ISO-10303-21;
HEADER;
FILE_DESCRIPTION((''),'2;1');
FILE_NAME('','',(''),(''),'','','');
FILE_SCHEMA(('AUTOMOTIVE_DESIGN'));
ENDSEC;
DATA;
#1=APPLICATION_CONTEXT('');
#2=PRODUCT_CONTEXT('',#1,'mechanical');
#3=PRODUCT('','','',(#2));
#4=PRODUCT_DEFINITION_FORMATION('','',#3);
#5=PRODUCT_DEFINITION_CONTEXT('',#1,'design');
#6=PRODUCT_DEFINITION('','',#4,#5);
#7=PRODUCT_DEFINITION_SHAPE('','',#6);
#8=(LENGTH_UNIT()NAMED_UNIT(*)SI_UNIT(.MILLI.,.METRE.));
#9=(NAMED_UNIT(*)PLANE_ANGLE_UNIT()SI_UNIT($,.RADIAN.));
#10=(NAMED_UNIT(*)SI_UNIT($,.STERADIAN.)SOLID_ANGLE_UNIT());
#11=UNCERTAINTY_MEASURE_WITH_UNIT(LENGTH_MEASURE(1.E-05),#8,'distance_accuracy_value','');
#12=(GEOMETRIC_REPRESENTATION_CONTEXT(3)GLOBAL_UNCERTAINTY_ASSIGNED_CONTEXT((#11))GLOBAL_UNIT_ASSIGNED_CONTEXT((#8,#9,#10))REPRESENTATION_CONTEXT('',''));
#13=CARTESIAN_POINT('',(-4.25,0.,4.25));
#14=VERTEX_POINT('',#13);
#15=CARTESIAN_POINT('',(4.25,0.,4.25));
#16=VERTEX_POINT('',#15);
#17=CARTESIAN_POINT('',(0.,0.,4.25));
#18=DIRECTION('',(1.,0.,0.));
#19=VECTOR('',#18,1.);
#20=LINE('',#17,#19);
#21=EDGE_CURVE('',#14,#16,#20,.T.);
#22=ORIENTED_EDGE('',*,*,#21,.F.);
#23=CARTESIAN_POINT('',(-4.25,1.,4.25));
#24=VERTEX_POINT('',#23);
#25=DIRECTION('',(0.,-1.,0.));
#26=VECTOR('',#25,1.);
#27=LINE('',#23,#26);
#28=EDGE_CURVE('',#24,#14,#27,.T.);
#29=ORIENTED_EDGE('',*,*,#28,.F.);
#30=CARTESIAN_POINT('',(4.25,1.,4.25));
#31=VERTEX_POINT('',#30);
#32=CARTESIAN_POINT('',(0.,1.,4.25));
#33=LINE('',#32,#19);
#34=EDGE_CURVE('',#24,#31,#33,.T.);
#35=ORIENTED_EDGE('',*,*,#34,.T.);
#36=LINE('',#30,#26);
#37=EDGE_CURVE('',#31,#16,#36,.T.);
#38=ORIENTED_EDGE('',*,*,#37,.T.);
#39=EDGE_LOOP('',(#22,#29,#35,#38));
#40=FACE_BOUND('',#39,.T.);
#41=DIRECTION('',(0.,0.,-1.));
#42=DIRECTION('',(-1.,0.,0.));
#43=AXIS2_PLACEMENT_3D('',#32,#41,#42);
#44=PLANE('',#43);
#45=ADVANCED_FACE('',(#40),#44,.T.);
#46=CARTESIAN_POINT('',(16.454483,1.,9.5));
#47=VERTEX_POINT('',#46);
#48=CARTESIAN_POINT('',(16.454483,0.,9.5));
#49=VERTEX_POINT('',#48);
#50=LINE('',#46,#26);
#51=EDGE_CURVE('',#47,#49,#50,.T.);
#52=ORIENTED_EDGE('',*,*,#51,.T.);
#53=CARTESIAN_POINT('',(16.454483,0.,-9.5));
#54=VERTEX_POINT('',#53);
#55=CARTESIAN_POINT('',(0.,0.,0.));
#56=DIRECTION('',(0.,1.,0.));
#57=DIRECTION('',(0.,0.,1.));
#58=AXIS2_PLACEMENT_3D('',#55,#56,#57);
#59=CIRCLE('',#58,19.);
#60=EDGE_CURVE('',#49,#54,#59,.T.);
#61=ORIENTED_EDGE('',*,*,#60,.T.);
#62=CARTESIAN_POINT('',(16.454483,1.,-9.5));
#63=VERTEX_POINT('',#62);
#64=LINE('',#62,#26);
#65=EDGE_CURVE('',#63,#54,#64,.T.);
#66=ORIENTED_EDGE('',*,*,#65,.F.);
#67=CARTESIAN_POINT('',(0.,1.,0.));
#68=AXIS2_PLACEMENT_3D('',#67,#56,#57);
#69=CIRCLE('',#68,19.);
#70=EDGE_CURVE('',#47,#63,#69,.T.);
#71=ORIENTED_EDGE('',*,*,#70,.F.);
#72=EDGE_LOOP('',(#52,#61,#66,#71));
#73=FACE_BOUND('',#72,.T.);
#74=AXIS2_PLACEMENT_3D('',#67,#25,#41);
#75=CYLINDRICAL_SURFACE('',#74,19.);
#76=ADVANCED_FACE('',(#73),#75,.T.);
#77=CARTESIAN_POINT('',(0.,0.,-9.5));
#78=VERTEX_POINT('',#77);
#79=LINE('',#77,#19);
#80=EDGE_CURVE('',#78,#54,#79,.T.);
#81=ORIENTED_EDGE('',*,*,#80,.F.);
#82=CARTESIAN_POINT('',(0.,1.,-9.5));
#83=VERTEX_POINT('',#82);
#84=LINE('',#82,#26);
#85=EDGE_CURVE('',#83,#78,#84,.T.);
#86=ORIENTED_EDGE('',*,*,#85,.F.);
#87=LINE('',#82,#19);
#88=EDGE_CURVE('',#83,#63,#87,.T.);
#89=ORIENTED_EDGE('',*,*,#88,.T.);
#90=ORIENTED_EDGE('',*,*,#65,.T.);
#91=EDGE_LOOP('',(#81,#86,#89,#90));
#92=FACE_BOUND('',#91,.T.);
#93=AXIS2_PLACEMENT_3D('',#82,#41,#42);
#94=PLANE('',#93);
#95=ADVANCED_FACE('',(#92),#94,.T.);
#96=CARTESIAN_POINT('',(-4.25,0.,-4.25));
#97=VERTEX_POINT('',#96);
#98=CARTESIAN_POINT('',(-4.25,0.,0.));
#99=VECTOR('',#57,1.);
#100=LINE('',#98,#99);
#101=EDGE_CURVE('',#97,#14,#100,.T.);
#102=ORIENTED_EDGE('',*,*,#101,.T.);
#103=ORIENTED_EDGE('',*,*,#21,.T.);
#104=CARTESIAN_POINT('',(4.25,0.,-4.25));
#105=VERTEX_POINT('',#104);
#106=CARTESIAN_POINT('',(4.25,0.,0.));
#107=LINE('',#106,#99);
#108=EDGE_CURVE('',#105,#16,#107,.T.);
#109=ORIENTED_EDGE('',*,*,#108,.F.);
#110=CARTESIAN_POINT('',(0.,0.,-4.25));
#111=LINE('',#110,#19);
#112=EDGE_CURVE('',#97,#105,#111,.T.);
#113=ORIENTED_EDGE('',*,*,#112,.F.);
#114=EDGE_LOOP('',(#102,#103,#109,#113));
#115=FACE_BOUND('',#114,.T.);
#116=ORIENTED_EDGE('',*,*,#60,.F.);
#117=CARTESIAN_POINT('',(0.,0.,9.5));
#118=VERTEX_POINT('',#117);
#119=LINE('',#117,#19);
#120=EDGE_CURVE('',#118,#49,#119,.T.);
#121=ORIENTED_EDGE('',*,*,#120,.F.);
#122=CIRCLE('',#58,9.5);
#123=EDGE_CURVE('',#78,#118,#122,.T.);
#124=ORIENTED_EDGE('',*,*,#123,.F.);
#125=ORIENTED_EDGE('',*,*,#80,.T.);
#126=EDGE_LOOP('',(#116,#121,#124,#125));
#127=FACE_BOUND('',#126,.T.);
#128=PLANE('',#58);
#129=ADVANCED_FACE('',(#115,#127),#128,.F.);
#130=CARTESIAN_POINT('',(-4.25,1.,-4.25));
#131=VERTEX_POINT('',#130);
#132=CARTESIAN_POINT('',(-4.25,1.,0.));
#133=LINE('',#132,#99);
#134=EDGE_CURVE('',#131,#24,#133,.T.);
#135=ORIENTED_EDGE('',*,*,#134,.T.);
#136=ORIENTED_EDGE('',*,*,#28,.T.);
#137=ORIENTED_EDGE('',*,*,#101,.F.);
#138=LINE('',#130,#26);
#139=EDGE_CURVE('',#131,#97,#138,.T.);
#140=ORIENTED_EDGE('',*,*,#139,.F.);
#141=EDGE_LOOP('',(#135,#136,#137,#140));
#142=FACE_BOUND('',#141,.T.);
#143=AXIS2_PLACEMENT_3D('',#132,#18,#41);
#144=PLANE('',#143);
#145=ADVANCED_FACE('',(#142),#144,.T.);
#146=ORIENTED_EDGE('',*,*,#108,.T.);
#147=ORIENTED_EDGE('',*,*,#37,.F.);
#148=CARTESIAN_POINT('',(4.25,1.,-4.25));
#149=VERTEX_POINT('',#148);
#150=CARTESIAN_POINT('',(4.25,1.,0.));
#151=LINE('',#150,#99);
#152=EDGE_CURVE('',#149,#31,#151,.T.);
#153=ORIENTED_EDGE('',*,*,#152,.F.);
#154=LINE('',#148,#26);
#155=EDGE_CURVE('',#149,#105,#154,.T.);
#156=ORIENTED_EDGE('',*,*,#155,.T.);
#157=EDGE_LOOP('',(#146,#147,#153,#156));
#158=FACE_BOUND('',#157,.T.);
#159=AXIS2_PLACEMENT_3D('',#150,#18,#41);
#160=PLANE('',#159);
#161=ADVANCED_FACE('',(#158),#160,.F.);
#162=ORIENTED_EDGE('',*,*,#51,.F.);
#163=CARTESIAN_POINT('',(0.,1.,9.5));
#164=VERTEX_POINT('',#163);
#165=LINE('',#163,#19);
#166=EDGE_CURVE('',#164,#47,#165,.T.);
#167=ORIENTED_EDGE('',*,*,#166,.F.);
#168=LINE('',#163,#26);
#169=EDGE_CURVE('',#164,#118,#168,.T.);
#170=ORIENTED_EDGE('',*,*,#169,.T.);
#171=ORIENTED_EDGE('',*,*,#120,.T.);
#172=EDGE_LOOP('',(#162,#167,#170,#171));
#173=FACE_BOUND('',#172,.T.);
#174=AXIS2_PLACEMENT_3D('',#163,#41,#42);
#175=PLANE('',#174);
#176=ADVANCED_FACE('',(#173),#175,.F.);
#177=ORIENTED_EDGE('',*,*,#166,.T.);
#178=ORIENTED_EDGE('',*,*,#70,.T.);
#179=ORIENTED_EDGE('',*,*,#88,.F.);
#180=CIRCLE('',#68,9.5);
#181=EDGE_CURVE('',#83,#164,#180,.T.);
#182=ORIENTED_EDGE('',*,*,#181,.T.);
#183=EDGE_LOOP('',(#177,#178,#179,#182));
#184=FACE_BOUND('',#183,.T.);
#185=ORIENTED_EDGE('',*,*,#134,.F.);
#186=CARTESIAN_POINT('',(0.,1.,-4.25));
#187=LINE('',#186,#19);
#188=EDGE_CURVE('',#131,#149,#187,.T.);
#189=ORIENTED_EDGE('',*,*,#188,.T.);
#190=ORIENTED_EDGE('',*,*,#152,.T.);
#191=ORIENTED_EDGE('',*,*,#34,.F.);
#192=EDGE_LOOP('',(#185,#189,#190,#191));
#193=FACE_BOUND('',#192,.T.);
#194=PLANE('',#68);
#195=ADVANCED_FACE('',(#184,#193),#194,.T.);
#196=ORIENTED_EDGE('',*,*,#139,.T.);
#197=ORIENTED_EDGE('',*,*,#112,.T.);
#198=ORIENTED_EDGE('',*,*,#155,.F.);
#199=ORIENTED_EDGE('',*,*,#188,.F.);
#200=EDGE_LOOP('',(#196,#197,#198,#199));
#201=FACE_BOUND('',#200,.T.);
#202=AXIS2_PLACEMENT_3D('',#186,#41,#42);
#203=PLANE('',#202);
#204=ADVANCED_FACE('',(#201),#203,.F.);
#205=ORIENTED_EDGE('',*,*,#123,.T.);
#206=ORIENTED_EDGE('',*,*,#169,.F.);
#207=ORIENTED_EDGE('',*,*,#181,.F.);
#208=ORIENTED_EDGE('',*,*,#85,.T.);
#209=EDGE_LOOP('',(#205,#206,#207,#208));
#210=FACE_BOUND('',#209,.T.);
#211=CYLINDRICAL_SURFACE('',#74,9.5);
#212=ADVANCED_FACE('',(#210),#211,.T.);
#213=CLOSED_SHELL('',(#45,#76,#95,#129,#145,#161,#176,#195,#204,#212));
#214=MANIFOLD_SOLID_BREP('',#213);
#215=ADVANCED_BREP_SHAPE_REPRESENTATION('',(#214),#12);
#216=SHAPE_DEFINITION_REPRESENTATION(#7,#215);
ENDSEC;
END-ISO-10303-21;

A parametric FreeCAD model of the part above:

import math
import FreeCAD as App
import Part
import Sketcher

V = App.Vector

doc = App.newDocument("Part")
body = doc.addObject("PartDesign::Body", "Body")

sketch1 = doc.addObject("Sketcher::SketchObject", "Sketch")
body.addObject(sketch1)
sketch1.AttachmentSupport = (doc.XZ_Plane, [""])
sketch1.MapMode = "FlatFace"
sketch1.addGeometry(Part.LineSegment(V(0, 9.5, 0), V(16.454483, 9.5, 0)), False)
sketch1.addGeometry(Part.ArcOfCircle(Part.Circle(V(0, 0, 0), V(0, 0, 1), 19), math.radians(-30), math.radians(30)), False)
sketch1.addGeometry(Part.LineSegment(V(16.454483, -9.5, 0), V(0, -9.5, 0)), False)
sketch1.addGeometry(Part.ArcOfCircle(Part.Circle(V(0, 0, 0), V(0, 0, 1), 9.5), math.radians(90), math.radians(270)), False)
sketch1.addGeometry(Part.LineSegment(V(4.25, 4.25, 0), V(-4.25, 4.25, 0)), False)
sketch1.addGeometry(Part.LineSegment(V(-4.25, 4.25, 0), V(-4.25, -4.25, 0)), False)
sketch1.addGeometry(Part.LineSegment(V(-4.25, -4.25, 0), V(4.25, -4.25, 0)), False)
sketch1.addGeometry(Part.LineSegment(V(4.25, -4.25, 0), V(4.25, 4.25, 0)), False)
sketch1.addConstraint(Sketcher.Constraint("Coincident", 0, 2, 1, 2))
sketch1.addConstraint(Sketcher.Constraint("Coincident", 1, 1, 2, 1))
sketch1.addConstraint(Sketcher.Constraint("Tangent", 2, 2, 3, 2))
sketch1.addConstraint(Sketcher.Constraint("Tangent", 3, 1, 0, 1))
sketch1.addConstraint(Sketcher.Constraint("Coincident", 4, 2, 5, 1))
sketch1.addConstraint(Sketcher.Constraint("Coincident", 5, 2, 6, 1))
sketch1.addConstraint(Sketcher.Constraint("Coincident", 6, 2, 7, 1))
sketch1.addConstraint(Sketcher.Constraint("Coincident", 7, 2, 4, 1))
sketch1.addConstraint(Sketcher.Constraint("Horizontal", 0))
sketch1.addConstraint(Sketcher.Constraint("Horizontal", 2))
sketch1.addConstraint(Sketcher.Constraint("Horizontal", 4))
sketch1.addConstraint(Sketcher.Constraint("Vertical", 5))
sketch1.addConstraint(Sketcher.Constraint("Horizontal", 6))
sketch1.addConstraint(Sketcher.Constraint("Vertical", 7))
sketch1.addConstraint(Sketcher.Constraint("Coincident", 1, 3, -1, 1))
sketch1.addConstraint(Sketcher.Constraint("Coincident", 3, 3, -1, 1))
sketch1.addConstraint(Sketcher.Constraint("Symmetric", 4, 2, 6, 2, -1, 1))
sketch1.addConstraint(Sketcher.Constraint("Equal", 6, 5))
sketch1.addConstraint(Sketcher.Constraint("Radius", 1, 19.0))
sketch1.addConstraint(Sketcher.Constraint("Radius", 3, 9.5))
sketch1.addConstraint(Sketcher.Constraint("DistanceX", 4, 2, 4, 1, 8.5))
pad1 = doc.addObject("PartDesign::Pad", "Pad")
body.addObject(pad1)
pad1.Profile = sketch1
pad1.Length = 1
pad1.Reversed = True

doc.recompute()
